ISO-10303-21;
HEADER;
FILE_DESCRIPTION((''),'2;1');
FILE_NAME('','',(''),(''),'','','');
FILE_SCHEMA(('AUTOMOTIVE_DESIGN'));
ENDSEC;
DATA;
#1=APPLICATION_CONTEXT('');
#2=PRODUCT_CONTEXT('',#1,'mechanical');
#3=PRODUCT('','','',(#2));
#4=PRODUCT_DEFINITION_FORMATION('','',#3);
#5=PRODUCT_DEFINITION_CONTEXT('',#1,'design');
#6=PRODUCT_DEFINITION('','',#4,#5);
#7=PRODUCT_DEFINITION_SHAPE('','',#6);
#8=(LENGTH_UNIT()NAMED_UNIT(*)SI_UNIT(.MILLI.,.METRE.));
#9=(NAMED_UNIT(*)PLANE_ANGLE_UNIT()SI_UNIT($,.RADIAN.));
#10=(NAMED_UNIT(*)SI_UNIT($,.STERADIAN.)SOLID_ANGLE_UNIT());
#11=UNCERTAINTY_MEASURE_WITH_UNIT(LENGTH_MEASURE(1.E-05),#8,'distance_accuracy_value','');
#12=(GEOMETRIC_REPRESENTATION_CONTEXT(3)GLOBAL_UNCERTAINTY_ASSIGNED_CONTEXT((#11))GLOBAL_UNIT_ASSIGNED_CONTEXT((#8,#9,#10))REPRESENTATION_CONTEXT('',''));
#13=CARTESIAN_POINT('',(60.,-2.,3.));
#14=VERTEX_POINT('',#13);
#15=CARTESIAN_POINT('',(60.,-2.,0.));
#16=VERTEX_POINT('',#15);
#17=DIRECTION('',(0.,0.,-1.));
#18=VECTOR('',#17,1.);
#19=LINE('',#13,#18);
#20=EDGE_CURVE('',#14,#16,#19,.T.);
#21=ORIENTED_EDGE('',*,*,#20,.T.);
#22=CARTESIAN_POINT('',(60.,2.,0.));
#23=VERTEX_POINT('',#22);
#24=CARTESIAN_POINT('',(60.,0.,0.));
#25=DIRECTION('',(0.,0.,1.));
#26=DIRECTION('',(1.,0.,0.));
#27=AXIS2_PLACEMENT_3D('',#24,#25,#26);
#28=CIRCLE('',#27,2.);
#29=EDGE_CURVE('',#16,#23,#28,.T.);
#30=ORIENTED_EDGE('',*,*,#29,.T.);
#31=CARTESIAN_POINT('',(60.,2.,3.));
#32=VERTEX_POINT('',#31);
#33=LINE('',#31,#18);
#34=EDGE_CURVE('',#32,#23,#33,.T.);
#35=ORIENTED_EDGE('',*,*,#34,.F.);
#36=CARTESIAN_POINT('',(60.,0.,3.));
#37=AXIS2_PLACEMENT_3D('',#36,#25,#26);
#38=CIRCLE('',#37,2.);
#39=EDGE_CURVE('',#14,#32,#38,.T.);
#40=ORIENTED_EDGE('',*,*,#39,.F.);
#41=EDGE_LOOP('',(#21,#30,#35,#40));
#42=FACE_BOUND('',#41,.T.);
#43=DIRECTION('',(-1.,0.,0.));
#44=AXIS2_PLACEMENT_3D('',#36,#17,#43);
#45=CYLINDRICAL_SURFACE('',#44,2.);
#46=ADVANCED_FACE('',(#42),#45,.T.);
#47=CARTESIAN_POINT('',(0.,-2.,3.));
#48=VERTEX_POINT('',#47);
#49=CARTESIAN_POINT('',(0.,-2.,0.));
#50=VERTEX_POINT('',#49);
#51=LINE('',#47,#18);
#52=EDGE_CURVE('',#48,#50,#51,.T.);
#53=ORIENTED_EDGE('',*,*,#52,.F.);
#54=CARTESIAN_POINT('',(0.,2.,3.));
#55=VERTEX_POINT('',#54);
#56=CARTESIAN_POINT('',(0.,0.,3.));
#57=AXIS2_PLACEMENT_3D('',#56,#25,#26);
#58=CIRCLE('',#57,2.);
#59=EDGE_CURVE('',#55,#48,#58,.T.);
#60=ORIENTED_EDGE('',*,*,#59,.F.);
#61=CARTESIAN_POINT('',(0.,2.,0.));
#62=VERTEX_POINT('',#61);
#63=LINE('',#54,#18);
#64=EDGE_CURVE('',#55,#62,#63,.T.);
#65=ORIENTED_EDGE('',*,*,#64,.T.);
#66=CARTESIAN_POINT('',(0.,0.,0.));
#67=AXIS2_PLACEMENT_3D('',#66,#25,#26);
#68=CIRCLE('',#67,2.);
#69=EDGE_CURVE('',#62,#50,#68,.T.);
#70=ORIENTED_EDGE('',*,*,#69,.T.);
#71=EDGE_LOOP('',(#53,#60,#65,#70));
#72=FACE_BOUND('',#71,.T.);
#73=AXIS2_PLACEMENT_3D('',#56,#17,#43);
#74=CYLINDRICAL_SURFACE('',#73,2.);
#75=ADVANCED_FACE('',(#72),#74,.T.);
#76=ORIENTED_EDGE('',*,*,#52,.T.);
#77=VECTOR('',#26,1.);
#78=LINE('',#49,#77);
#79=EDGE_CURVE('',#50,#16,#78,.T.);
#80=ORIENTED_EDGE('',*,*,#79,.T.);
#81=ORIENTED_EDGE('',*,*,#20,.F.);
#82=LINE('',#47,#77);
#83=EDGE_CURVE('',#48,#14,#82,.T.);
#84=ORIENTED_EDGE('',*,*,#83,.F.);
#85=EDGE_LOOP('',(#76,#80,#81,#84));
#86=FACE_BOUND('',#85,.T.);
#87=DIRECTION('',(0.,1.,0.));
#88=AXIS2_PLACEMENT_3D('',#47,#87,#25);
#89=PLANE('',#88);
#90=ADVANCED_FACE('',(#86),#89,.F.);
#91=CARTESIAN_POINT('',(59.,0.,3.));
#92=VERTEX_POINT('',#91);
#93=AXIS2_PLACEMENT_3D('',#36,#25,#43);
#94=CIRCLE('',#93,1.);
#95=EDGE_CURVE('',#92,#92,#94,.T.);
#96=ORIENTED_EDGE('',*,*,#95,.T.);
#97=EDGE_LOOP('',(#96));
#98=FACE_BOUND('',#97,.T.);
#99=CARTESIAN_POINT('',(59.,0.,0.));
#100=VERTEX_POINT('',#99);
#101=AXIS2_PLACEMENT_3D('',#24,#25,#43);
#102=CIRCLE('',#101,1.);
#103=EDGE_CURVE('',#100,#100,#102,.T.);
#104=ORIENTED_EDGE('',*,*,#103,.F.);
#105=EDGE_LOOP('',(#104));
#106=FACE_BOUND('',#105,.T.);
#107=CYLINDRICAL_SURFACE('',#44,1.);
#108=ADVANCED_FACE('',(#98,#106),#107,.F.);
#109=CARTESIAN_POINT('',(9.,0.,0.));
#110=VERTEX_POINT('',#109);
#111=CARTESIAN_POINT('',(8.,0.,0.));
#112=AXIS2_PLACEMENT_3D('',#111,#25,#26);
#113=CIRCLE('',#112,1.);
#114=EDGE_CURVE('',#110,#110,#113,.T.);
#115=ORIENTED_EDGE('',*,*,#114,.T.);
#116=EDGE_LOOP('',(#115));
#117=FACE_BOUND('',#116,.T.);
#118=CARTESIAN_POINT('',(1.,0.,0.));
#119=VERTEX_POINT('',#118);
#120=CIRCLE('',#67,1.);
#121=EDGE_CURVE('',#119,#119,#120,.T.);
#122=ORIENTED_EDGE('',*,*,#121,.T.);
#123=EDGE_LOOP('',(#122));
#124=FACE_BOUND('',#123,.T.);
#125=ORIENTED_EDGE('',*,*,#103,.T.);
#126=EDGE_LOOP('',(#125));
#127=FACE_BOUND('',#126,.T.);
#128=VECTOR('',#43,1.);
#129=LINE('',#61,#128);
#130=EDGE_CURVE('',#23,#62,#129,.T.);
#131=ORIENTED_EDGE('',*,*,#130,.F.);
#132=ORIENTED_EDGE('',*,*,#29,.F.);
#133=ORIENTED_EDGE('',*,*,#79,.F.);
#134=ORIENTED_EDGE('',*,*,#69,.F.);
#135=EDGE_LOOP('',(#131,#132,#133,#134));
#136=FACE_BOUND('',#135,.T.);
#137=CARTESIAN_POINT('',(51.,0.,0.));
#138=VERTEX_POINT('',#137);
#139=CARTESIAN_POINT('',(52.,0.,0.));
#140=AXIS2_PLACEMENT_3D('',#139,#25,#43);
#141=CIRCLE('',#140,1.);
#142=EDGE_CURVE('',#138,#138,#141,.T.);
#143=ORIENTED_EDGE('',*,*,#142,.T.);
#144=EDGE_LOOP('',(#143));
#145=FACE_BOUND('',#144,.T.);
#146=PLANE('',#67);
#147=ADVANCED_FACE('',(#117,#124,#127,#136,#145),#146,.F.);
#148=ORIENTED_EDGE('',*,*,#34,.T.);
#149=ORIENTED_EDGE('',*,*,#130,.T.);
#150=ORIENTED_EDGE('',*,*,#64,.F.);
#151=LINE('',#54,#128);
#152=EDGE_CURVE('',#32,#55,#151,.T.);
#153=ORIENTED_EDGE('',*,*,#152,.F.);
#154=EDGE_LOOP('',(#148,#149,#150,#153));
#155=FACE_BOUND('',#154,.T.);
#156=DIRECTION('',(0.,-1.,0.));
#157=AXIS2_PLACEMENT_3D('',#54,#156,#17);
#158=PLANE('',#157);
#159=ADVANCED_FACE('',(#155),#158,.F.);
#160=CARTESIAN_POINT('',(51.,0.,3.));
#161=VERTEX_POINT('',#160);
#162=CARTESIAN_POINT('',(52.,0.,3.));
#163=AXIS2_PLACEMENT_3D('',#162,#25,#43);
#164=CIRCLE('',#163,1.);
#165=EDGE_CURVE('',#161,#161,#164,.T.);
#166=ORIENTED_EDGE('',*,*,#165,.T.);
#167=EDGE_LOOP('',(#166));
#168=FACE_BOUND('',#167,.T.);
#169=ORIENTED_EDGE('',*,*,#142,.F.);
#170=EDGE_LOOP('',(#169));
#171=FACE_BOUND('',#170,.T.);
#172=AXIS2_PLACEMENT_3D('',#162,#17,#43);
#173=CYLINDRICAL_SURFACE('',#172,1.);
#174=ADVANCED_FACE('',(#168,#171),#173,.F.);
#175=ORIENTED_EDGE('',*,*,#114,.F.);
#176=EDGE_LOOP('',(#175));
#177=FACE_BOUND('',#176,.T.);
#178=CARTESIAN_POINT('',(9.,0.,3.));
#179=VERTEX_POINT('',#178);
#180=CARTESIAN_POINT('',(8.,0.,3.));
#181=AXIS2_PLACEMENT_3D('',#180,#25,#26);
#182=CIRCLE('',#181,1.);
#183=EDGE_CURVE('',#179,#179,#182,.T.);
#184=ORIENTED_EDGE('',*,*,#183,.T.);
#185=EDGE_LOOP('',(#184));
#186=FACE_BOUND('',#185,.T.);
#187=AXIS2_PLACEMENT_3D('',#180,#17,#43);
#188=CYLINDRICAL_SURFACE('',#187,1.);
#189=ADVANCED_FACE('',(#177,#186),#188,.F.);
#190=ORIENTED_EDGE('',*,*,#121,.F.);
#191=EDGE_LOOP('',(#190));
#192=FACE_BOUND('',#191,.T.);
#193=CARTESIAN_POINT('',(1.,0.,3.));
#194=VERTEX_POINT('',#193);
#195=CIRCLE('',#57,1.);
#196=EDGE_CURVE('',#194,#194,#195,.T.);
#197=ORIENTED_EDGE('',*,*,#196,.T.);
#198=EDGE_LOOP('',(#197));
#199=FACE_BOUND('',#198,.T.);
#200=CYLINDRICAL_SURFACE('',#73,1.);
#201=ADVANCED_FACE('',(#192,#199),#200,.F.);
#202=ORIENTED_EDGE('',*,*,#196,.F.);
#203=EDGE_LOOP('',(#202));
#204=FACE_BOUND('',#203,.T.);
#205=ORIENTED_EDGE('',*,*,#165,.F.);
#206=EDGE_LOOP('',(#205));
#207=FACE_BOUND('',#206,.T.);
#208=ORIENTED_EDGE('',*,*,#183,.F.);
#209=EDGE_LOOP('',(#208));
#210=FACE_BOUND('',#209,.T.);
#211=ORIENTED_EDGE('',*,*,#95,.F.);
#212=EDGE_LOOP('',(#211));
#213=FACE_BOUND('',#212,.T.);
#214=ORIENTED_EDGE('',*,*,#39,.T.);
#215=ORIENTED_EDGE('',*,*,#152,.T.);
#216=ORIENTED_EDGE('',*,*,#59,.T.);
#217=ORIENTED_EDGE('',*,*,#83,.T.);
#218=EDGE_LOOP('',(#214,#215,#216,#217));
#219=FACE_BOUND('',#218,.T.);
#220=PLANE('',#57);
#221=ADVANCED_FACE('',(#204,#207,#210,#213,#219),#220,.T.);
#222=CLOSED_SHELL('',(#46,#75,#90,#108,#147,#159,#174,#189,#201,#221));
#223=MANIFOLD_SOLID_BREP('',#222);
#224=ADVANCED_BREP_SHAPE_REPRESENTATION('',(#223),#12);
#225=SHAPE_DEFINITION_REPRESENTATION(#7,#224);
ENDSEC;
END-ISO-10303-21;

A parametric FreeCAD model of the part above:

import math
import FreeCAD as App
import Part
import Sketcher

V = App.Vector
Q = App.Units.Quantity

doc = App.newDocument("Part")
body = doc.addObject("PartDesign::Body", "Body")

sketch1 = body.newObject("Sketcher::SketchObject", "Sketch")
sketch1.AttachmentSupport = (doc.getObject("XY_Plane"), [""])
sketch1.MapMode = "FlatFace"
sketch1.addGeometry(Part.LineSegment(V(60, 2, 0), V(0, 2, 0)), False)
sketch1.addGeometry(Part.ArcOfCircle(Part.Circle(V(0, 0, 0), V(0, 0, 1), 2), math.radians(90), math.radians(270)), False)
sketch1.addGeometry(Part.LineSegment(V(0, -2, 0), V(60, -2, 0)), False)
sketch1.addGeometry(Part.ArcOfCircle(Part.Circle(V(60, 0, 0), V(0, 0, 1), 2), math.radians(-90), math.radians(90)), False)
sketch1.addGeometry(Part.Circle(V(60, 0, 0), V(0, 0, 1), 1), False)
sketch1.addGeometry(Part.Circle(V(52, 0, 0), V(0, 0, 1), 1), False)
sketch1.addGeometry(Part.Circle(V(8, 0, 0), V(0, 0, 1), 1), False)
sketch1.addGeometry(Part.Circle(V(0, 0, 0), V(0, 0, 1), 1), False)
sketch1.addConstraint(Sketcher.Constraint("Tangent", 0, 2, 1, 1))
sketch1.addConstraint(Sketcher.Constraint("Tangent", 1, 2, 2, 1))
sketch1.addConstraint(Sketcher.Constraint("Tangent", 2, 2, 3, 1))
sketch1.addConstraint(Sketcher.Constraint("Tangent", 3, 2, 0, 1))
sketch1.addConstraint(Sketcher.Constraint("Horizontal", 0))
sketch1.addConstraint(Sketcher.Constraint("Horizontal", 2))
sketch1.addConstraint(Sketcher.Constraint("Coincident", 1, 3, -1, 1))
sketch1.addConstraint(Sketcher.Constraint("Coincident", 7, 3, -1, 1))
sketch1.addConstraint(Sketcher.Constraint("Coincident", 4, 3, 3, 3))
sketch1.addConstraint(Sketcher.Constraint("Equal", 4, 5))
sketch1.addConstraint(Sketcher.Constraint("Equal", 5, 6))
sketch1.addConstraint(Sketcher.Constraint("Equal", 6, 7))
sketch1.addConstraint(Sketcher.Constraint("PointOnObject", 5, 3, -1))
sketch1.addConstraint(Sketcher.Constraint("PointOnObject", 6, 3, -1))
sketch1.addConstraint(Sketcher.Constraint("Diameter", 4, Q("2 mm")))
sketch1.addConstraint(Sketcher.Constraint("Radius", 1, Q("2 mm")))
sketch1.addConstraint(Sketcher.Constraint("DistanceX", 0, 2, 0, 1, Q("60 mm")))
sketch1.addConstraint(Sketcher.Constraint("DistanceX", -1, 1, 5, 3, Q("52 mm")))
sketch1.addConstraint(Sketcher.Constraint("DistanceX", -1, 1, 6, 3, Q("8 mm")))
pad1 = body.newObject("PartDesign::Pad", "Pad")
pad1.Profile = sketch1
pad1.Length = 3

doc.recompute()
